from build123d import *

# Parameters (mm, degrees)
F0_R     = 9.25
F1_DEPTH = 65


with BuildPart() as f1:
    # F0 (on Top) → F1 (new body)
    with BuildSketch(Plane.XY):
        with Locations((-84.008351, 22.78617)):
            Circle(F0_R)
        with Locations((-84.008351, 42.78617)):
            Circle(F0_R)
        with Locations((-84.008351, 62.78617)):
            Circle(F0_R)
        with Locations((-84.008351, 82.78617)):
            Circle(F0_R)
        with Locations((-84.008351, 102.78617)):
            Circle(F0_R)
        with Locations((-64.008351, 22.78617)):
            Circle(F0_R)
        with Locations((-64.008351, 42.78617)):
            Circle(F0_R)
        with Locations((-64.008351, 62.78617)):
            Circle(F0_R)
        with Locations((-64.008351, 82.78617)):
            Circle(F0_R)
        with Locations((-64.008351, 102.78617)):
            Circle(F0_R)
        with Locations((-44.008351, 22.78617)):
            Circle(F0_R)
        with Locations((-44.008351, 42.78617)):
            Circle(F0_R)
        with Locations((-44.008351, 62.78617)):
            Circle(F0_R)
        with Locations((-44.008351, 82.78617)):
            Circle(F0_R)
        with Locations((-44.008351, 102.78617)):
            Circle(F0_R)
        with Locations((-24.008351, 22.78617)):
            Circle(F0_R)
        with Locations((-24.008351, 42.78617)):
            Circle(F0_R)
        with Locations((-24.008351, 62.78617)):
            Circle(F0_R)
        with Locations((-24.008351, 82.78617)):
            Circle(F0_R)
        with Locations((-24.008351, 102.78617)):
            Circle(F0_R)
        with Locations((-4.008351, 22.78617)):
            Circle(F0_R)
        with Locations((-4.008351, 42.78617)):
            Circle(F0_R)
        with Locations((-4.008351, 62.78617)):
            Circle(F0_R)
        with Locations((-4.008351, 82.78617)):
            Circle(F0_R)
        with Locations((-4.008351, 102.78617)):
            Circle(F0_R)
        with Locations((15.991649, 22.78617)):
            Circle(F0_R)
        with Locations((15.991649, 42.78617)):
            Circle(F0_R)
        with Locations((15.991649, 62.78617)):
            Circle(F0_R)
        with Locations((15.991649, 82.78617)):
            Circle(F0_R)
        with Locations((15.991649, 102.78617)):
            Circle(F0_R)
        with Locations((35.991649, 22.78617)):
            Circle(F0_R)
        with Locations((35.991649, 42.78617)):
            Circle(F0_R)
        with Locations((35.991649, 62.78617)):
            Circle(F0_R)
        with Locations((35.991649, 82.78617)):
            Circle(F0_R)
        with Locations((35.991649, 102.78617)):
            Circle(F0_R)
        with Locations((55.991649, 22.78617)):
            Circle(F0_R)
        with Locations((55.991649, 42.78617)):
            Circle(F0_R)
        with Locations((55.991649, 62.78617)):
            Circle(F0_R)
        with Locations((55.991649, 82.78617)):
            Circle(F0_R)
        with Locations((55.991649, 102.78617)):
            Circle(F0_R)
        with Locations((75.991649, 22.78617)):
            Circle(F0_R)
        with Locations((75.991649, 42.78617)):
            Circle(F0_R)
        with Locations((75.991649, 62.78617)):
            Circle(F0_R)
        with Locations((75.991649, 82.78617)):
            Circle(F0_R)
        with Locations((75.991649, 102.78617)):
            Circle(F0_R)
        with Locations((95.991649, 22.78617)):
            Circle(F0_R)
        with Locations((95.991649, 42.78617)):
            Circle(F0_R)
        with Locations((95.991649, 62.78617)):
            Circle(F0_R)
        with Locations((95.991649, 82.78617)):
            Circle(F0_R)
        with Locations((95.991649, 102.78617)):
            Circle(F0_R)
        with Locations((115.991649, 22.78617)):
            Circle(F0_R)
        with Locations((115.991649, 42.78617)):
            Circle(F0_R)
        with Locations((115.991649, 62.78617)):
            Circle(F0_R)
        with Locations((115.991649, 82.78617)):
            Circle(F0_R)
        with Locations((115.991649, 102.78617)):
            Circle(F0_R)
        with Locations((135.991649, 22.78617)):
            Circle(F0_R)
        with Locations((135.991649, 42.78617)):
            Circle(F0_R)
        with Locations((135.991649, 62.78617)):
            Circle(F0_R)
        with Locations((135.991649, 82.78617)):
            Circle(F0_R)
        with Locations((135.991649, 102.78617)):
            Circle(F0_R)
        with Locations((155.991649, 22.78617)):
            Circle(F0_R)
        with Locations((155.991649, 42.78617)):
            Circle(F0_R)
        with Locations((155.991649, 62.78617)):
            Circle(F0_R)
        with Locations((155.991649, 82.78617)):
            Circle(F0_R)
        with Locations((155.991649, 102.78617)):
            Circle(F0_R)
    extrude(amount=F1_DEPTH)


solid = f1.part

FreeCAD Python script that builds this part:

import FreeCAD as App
import Part
import Sketcher
from FreeCAD import Vector

doc = App.newDocument("Part")
body = doc.addObject("PartDesign::Body", "Body")
body.AllowCompound = True

sketch1 = body.newObject("Sketcher::SketchObject", "Sketch")
sketch1.AttachmentSupport = (doc.getObject("XY_Plane"), [""])
sketch1.MapMode = "FlatFace"
sketch1.addGeometry([
    Part.Circle(Vector(-84, 23, 0), Vector(0, 0, 1), 9),
    Part.Circle(Vector(-84, 43, 0), Vector(0, 0, 1), 9),
    Part.Circle(Vector(-84, 63, 0), Vector(0, 0, 1), 9),
    Part.Circle(Vector(-84, 83, 0), Vector(0, 0, 1), 9),
    Part.Circle(Vector(-84, 103, 0), Vector(0, 0, 1), 9),
    Part.Circle(Vector(-64, 23, 0), Vector(0, 0, 1), 9),
    Part.Circle(Vector(-64, 43, 0), Vector(0, 0, 1), 9),
    Part.Circle(Vector(-64, 63, 0), Vector(0, 0, 1), 9),
    Part.Circle(Vector(-64, 83, 0), Vector(0, 0, 1), 9),
    Part.Circle(Vector(-64, 103, 0), Vector(0, 0, 1), 9),
    Part.Circle(Vector(-44, 23, 0), Vector(0, 0, 1), 9),
    Part.Circle(Vector(-44, 43, 0), Vector(0, 0, 1), 9),
    Part.Circle(Vector(-44, 63, 0), Vector(0, 0, 1), 9),
    Part.Circle(Vector(-44, 83, 0), Vector(0, 0, 1), 9),
    Part.Circle(Vector(-44, 103, 0), Vector(0, 0, 1), 9),
    Part.Circle(Vector(-24, 23, 0), Vector(0, 0, 1), 9),
    Part.Circle(Vector(-24, 43, 0), Vector(0, 0, 1), 9),
    Part.Circle(Vector(-24, 63, 0), Vector(0, 0, 1), 9),
    Part.Circle(Vector(-24, 83, 0), Vector(0, 0, 1), 9),
    Part.Circle(Vector(-24, 103, 0), Vector(0, 0, 1), 9),
    Part.Circle(Vector(-4, 23, 0), Vector(0, 0, 1), 9),
    Part.Circle(Vector(-4, 43, 0), Vector(0, 0, 1), 9),
    Part.Circle(Vector(-4, 63, 0), Vector(0, 0, 1), 9),
    Part.Circle(Vector(-4, 83, 0), Vector(0, 0, 1), 9),
    Part.Circle(Vector(-4, 103, 0), Vector(0, 0, 1), 9),
    Part.Circle(Vector(16, 23, 0), Vector(0, 0, 1), 9),
    Part.Circle(Vector(16, 43, 0), Vector(0, 0, 1), 9),
    Part.Circle(Vector(16, 63, 0), Vector(0, 0, 1), 9),
    Part.Circle(Vector(16, 83, 0), Vector(0, 0, 1), 9),
    Part.Circle(Vector(16, 103, 0), Vector(0, 0, 1), 9),
    Part.Circle(Vector(36, 23, 0), Vector(0, 0, 1), 9),
    Part.Circle(Vector(36, 43, 0), Vector(0, 0, 1), 9),
    Part.Circle(Vector(36, 63, 0), Vector(0, 0, 1), 9),
    Part.Circle(Vector(36, 83, 0), Vector(0, 0, 1), 9),
    Part.Circle(Vector(36, 103, 0), Vector(0, 0, 1), 9),
    Part.Circle(Vector(56, 23, 0), Vector(0, 0, 1), 9),
    Part.Circle(Vector(56, 43, 0), Vector(0, 0, 1), 9),
    Part.Circle(Vector(56, 63, 0), Vector(0, 0, 1), 9),
    Part.Circle(Vector(56, 83, 0), Vector(0, 0, 1), 9),
    Part.Circle(Vector(56, 103, 0), Vector(0, 0, 1), 9),
    Part.Circle(Vector(76, 23, 0), Vector(0, 0, 1), 9),
    Part.Circle(Vector(76, 43, 0), Vector(0, 0, 1), 9),
    Part.Circle(Vector(76, 63, 0), Vector(0, 0, 1), 9),
    Part.Circle(Vector(76, 83, 0), Vector(0, 0, 1), 9),
    Part.Circle(Vector(76, 103, 0), Vector(0, 0, 1), 9),
    Part.Circle(Vector(96, 23, 0), Vector(0, 0, 1), 9),
    Part.Circle(Vector(96, 43, 0), Vector(0, 0, 1), 9),
    Part.Circle(Vector(96, 63, 0), Vector(0, 0, 1), 9),
    Part.Circle(Vector(96, 83, 0), Vector(0, 0, 1), 9),
    Part.Circle(Vector(96, 103, 0), Vector(0, 0, 1), 9),
    Part.Circle(Vector(116, 23, 0), Vector(0, 0, 1), 9),
    Part.Circle(Vector(116, 43, 0), Vector(0, 0, 1), 9),
    Part.Circle(Vector(116, 63, 0), Vector(0, 0, 1), 9),
    Part.Circle(Vector(116, 83, 0), Vector(0, 0, 1), 9),
    Part.Circle(Vector(116, 103, 0), Vector(0, 0, 1), 9),
    Part.Circle(Vector(136, 23, 0), Vector(0, 0, 1), 9),
    Part.Circle(Vector(136, 43, 0), Vector(0, 0, 1), 9),
    Part.Circle(Vector(136, 63, 0), Vector(0, 0, 1), 9),
    Part.Circle(Vector(136, 83, 0), Vector(0, 0, 1), 9),
    Part.Circle(Vector(136, 103, 0), Vector(0, 0, 1), 9),
    Part.Circle(Vector(156, 23, 0), Vector(0, 0, 1), 9),
    Part.Circle(Vector(156, 43, 0), Vector(0, 0, 1), 9),
    Part.Circle(Vector(156, 63, 0), Vector(0, 0, 1), 9),
    Part.Circle(Vector(156, 83, 0), Vector(0, 0, 1), 9),
    Part.Circle(Vector(156, 103, 0), Vector(0, 0, 1), 9),
], False)
sketch1.addConstraint([
    Sketcher.Constraint("Equal", 0, 1),
    Sketcher.Constraint("Equal", 1, 2),
    Sketcher.Constraint("Equal", 2, 3),
    Sketcher.Constraint("Equal", 3, 4),
    Sketcher.Constraint("Equal", 4, 5),
    Sketcher.Constraint("Equal", 5, 6),
    Sketcher.Constraint("Equal", 6, 7),
    Sketcher.Constraint("Equal", 7, 8),
    Sketcher.Constraint("Equal", 8, 9),
    Sketcher.Constraint("Equal", 9, 10),
    Sketcher.Constraint("Equal", 10, 11),
    Sketcher.Constraint("Equal", 11, 12),
    Sketcher.Constraint("Equal", 12, 13),
    Sketcher.Constraint("Equal", 13, 14),
    Sketcher.Constraint("Equal", 14, 15),
    Sketcher.Constraint("Equal", 15, 16),
    Sketcher.Constraint("Equal", 16, 17),
    Sketcher.Constraint("Equal", 17, 18),
    Sketcher.Constraint("Equal", 18, 19),
    Sketcher.Constraint("Equal", 19, 20),
    Sketcher.Constraint("Equal", 20, 21),
    Sketcher.Constraint("Equal", 21, 22),
    Sketcher.Constraint("Equal", 22, 23),
    Sketcher.Constraint("Equal", 23, 24),
    Sketcher.Constraint("Equal", 24, 25),
    Sketcher.Constraint("Equal", 25, 26),
    Sketcher.Constraint("Equal", 26, 27),
    Sketcher.Constraint("Equal", 27, 28),
    Sketcher.Constraint("Equal", 28, 29),
    Sketcher.Constraint("Equal", 29, 30),
    Sketcher.Constraint("Equal", 30, 31),
    Sketcher.Constraint("Equal", 31, 32),
    Sketcher.Constraint("Equal", 32, 33),
    Sketcher.Constraint("Equal", 33, 34),
    Sketcher.Constraint("Equal", 34, 35),
    Sketcher.Constraint("Equal", 35, 36),
    Sketcher.Constraint("Equal", 36, 37),
    Sketcher.Constraint("Equal", 37, 38),
    Sketcher.Constraint("Equal", 38, 39),
    Sketcher.Constraint("Equal", 39, 40),
    Sketcher.Constraint("Equal", 40, 41),
    Sketcher.Constraint("Equal", 41, 42),
    Sketcher.Constraint("Equal", 42, 43),
    Sketcher.Constraint("Equal", 43, 44),
    Sketcher.Constraint("Equal", 44, 45),
    Sketcher.Constraint("Equal", 45, 46),
    Sketcher.Constraint("Equal", 46, 47),
    Sketcher.Constraint("Equal", 47, 48),
    Sketcher.Constraint("Equal", 48, 49),
    Sketcher.Constraint("Equal", 49, 50),
    Sketcher.Constraint("Equal", 50, 51),
    Sketcher.Constraint("Equal", 51, 52),
    Sketcher.Constraint("Equal", 52, 53),
    Sketcher.Constraint("Equal", 53, 54),
    Sketcher.Constraint("Equal", 54, 55),
    Sketcher.Constraint("Equal", 55, 56),
    Sketcher.Constraint("Equal", 56, 57),
    Sketcher.Constraint("Equal", 57, 58),
    Sketcher.Constraint("Equal", 58, 59),
    Sketcher.Constraint("Equal", 59, 60),
    Sketcher.Constraint("Equal", 60, 61),
    Sketcher.Constraint("Equal", 61, 62),
    Sketcher.Constraint("Equal", 62, 63),
    Sketcher.Constraint("Equal", 63, 64),
    Sketcher.Constraint("Horizontal", 0, 3, 5, 3),
    Sketcher.Constraint("Horizontal", 1, 3, 6, 3),
    Sketcher.Constraint("Horizontal", 2, 3, 7, 3),
    Sketcher.Constraint("Horizontal", 3, 3, 8, 3),
    Sketcher.Constraint("Horizontal", 4, 3, 9, 3),
    Sketcher.Constraint("Horizontal", 5, 3, 10, 3),
    Sketcher.Constraint("Horizontal", 6, 3, 11, 3),
    Sketcher.Constraint("Horizontal", 7, 3, 12, 3),
    Sketcher.Constraint("Horizontal", 8, 3, 13, 3),
    Sketcher.Constraint("Horizontal", 9, 3, 14, 3),
    Sketcher.Constraint("Horizontal", 10, 3, 15, 3),
    Sketcher.Constraint("Horizontal", 11, 3, 16, 3),
    Sketcher.Constraint("Horizontal", 12, 3, 17, 3),
    Sketcher.Constraint("Horizontal", 13, 3, 18, 3),
    Sketcher.Constraint("Horizontal", 14, 3, 19, 3),
    Sketcher.Constraint("Horizontal", 15, 3, 20, 3),
    Sketcher.Constraint("Horizontal", 16, 3, 21, 3),
    Sketcher.Constraint("Horizontal", 17, 3, 22, 3),
    Sketcher.Constraint("Horizontal", 18, 3, 23, 3),
    Sketcher.Constraint("Horizontal", 19, 3, 24, 3),
    Sketcher.Constraint("Horizontal", 20, 3, 25, 3),
    Sketcher.Constraint("Horizontal", 21, 3, 26, 3),
    Sketcher.Constraint("Horizontal", 22, 3, 27, 3),
    Sketcher.Constraint("Horizontal", 23, 3, 28, 3),
    Sketcher.Constraint("Horizontal", 24, 3, 29, 3),
    Sketcher.Constraint("Horizontal", 25, 3, 30, 3),
    Sketcher.Constraint("Horizontal", 26, 3, 31, 3),
    Sketcher.Constraint("Horizontal", 27, 3, 32, 3),
    Sketcher.Constraint("Horizontal", 28, 3, 33, 3),
    Sketcher.Constraint("Horizontal", 29, 3, 34, 3),
    Sketcher.Constraint("Horizontal", 30, 3, 35, 3),
    Sketcher.Constraint("Horizontal", 31, 3, 36, 3),
    Sketcher.Constraint("Horizontal", 32, 3, 37, 3),
    Sketcher.Constraint("Horizontal", 33, 3, 38, 3),
    Sketcher.Constraint("Horizontal", 34, 3, 39, 3),
    Sketcher.Constraint("Horizontal", 35, 3, 40, 3),
    Sketcher.Constraint("Horizontal", 36, 3, 41, 3),
    Sketcher.Constraint("Horizontal", 37, 3, 42, 3),
    Sketcher.Constraint("Horizontal", 38, 3, 43, 3),
    Sketcher.Constraint("Horizontal", 39, 3, 44, 3),
    Sketcher.Constraint("Horizontal", 40, 3, 45, 3),
    Sketcher.Constraint("Horizontal", 41, 3, 46, 3),
    Sketcher.Constraint("Horizontal", 42, 3, 47, 3),
    Sketcher.Constraint("Horizontal", 43, 3, 48, 3),
    Sketcher.Constraint("Horizontal", 44, 3, 49, 3),
    Sketcher.Constraint("Horizontal", 45, 3, 50, 3),
    Sketcher.Constraint("Horizontal", 46, 3, 51, 3),
    Sketcher.Constraint("Horizontal", 47, 3, 52, 3),
    Sketcher.Constraint("Horizontal", 48, 3, 53, 3),
    Sketcher.Constraint("Horizontal", 49, 3, 54, 3),
    Sketcher.Constraint("Horizontal", 50, 3, 55, 3),
    Sketcher.Constraint("Horizontal", 51, 3, 56, 3),
    Sketcher.Constraint("Horizontal", 52, 3, 57, 3),
    Sketcher.Constraint("Horizontal", 53, 3, 58, 3),
    Sketcher.Constraint("Horizontal", 54, 3, 59, 3),
    Sketcher.Constraint("Horizontal", 55, 3, 60, 3),
    Sketcher.Constraint("Horizontal", 56, 3, 61, 3),
    Sketcher.Constraint("Horizontal", 57, 3, 62, 3),
    Sketcher.Constraint("Horizontal", 58, 3, 63, 3),
    Sketcher.Constraint("Horizontal", 59, 3, 64, 3),
    Sketcher.Constraint("Vertical", 0, 3, 1, 3),
    Sketcher.Constraint("Vertical", 1, 3, 2, 3),
    Sketcher.Constraint("Vertical", 2, 3, 3, 3),
    Sketcher.Constraint("Vertical", 3, 3, 4, 3),
    Sketcher.Constraint("Vertical", 5, 3, 6, 3),
    Sketcher.Constraint("Vertical", 6, 3, 7, 3),
    Sketcher.Constraint("Vertical", 7, 3, 8, 3),
    Sketcher.Constraint("Vertical", 8, 3, 9, 3),
    Sketcher.Constraint("Vertical", 10, 3, 11, 3),
    Sketcher.Constraint("Vertical", 11, 3, 12, 3),
    Sketcher.Constraint("Vertical", 12, 3, 13, 3),
    Sketcher.Constraint("Vertical", 13, 3, 14, 3),
    Sketcher.Constraint("Vertical", 15, 3, 16, 3),
    Sketcher.Constraint("Vertical", 16, 3, 17, 3),
    Sketcher.Constraint("Vertical", 17, 3, 18, 3),
    Sketcher.Constraint("Vertical", 18, 3, 19, 3),
    Sketcher.Constraint("Vertical", 20, 3, 21, 3),
    Sketcher.Constraint("Vertical", 21, 3, 22, 3),
    Sketcher.Constraint("Vertical", 22, 3, 23, 3),
    Sketcher.Constraint("Vertical", 23, 3, 24, 3),
    Sketcher.Constraint("Vertical", 25, 3, 26, 3),
    Sketcher.Constraint("Vertical", 26, 3, 27, 3),
    Sketcher.Constraint("Vertical", 27, 3, 28, 3),
    Sketcher.Constraint("Vertical", 28, 3, 29, 3),
    Sketcher.Constraint("Vertical", 30, 3, 31, 3),
    Sketcher.Constraint("Vertical", 31, 3, 32, 3),
    Sketcher.Constraint("Vertical", 32, 3, 33, 3),
    Sketcher.Constraint("Vertical", 33, 3, 34, 3),
    Sketcher.Constraint("Vertical", 35, 3, 36, 3),
    Sketcher.Constraint("Vertical", 36, 3, 37, 3),
    Sketcher.Constraint("Vertical", 37, 3, 38, 3),
    Sketcher.Constraint("Vertical", 38, 3, 39, 3),
    Sketcher.Constraint("Vertical", 40, 3, 41, 3),
    Sketcher.Constraint("Vertical", 41, 3, 42, 3),
    Sketcher.Constraint("Vertical", 42, 3, 43, 3),
    Sketcher.Constraint("Vertical", 43, 3, 44, 3),
    Sketcher.Constraint("Vertical", 45, 3, 46, 3),
    Sketcher.Constraint("Vertical", 46, 3, 47, 3),
    Sketcher.Constraint("Vertical", 47, 3, 48, 3),
    Sketcher.Constraint("Vertical", 48, 3, 49, 3),
    Sketcher.Constraint("Vertical", 50, 3, 51, 3),
    Sketcher.Constraint("Vertical", 51, 3, 52, 3),
    Sketcher.Constraint("Vertical", 52, 3, 53, 3),
    Sketcher.Constraint("Vertical", 53, 3, 54, 3),
    Sketcher.Constraint("Vertical", 55, 3, 56, 3),
    Sketcher.Constraint("Vertical", 56, 3, 57, 3),
    Sketcher.Constraint("Vertical", 57, 3, 58, 3),
    Sketcher.Constraint("Vertical", 58, 3, 59, 3),
    Sketcher.Constraint("Vertical", 60, 3, 61, 3),
    Sketcher.Constraint("Vertical", 61, 3, 62, 3),
    Sketcher.Constraint("Vertical", 62, 3, 63, 3),
    Sketcher.Constraint("Vertical", 63, 3, 64, 3),
    Sketcher.Constraint("Diameter", 0, 18.5),
    Sketcher.Constraint("DistanceX", 0, 3, -1, 1, 84.008351),
    Sketcher.Constraint("DistanceY", -1, 1, 0, 3, 22.78617),
    Sketcher.Constraint("DistanceY", -1, 1, 1, 3, 42.78617),
    Sketcher.Constraint("DistanceY", -1, 1, 2, 3, 62.78617),
    Sketcher.Constraint("DistanceY", -1, 1, 3, 3, 82.78617),
    Sketcher.Constraint("DistanceY", -1, 1, 4, 3, 102.78617),
    Sketcher.Constraint("DistanceX", 5, 3, -1, 1, 64.008351),
    Sketcher.Constraint("DistanceX", 10, 3, -1, 1, 44.008351),
    Sketcher.Constraint("DistanceX", 15, 3, -1, 1, 24.008351),
    Sketcher.Constraint("DistanceX", 20, 3, -1, 1, 4.008351),
    Sketcher.Constraint("DistanceX", -1, 1, 25, 3, 15.991649),
    Sketcher.Constraint("DistanceX", -1, 1, 30, 3, 35.991649),
    Sketcher.Constraint("DistanceX", -1, 1, 35, 3, 55.991649),
    Sketcher.Constraint("DistanceX", -1, 1, 40, 3, 75.991649),
    Sketcher.Constraint("DistanceX", -1, 1, 45, 3, 95.991649),
    Sketcher.Constraint("DistanceX", -1, 1, 50, 3, 115.991649),
    Sketcher.Constraint("DistanceX", -1, 1, 55, 3, 135.991649),
    Sketcher.Constraint("DistanceX", -1, 1, 60, 3, 155.991649),
])
pad1 = body.newObject("PartDesign::Pad", "Pad")
pad1.Profile = sketch1
pad1.Length = 65

doc.recompute()
